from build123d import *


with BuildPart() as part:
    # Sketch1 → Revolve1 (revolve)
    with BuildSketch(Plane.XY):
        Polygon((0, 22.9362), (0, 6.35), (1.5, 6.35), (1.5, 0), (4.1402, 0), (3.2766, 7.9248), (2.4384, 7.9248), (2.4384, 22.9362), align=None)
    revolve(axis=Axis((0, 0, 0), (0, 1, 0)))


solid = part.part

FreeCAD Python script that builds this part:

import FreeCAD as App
import Part
import Sketcher
from FreeCAD import Vector
Q = App.Units.Quantity


def add_polygon(sketch, points):
    """Adds a closed chain of lines whose ends are joined by coincident constraints."""
    first, n = sketch.GeometryCount, len(points)
    for a, b in zip(points, points[1:] + points[:1]):
        sketch.addGeometry(Part.LineSegment(App.Vector(*a, 0), App.Vector(*b, 0)), False)
    for i in range(n):
        sketch.addConstraint(Sketcher.Constraint("Coincident", first + i, 2, first + (i + 1) % n, 1))

doc = App.newDocument("Part")
body = doc.addObject("PartDesign::Body", "Body")

# Sketch on XY plane
sketch1 = doc.addObject("Sketcher::SketchObject", "Sketch")
body.addObject(sketch1)
sketch1.AttachmentSupport = (doc.XY_Plane, [""])
sketch1.MapMode = "FlatFace"
add_polygon(sketch1, [(0, 22.9), (0, 6.3), (1.5, 6.3), (1.5, 0), (4.1, 0), (3.3, 7.9), (2.4, 7.9), (2.4, 22.9)])  # lines 0-7
sketch1.addConstraint(Sketcher.Constraint("Vertical", 0))
sketch1.addConstraint(Sketcher.Constraint("Horizontal", 1))
sketch1.addConstraint(Sketcher.Constraint("Vertical", 2))
sketch1.addConstraint(Sketcher.Constraint("Horizontal", 3))
sketch1.addConstraint(Sketcher.Constraint("Horizontal", 5))
sketch1.addConstraint(Sketcher.Constraint("Vertical", 6))
sketch1.addConstraint(Sketcher.Constraint("Horizontal", 7))
sketch1.addConstraint(Sketcher.Constraint("PointOnObject", 0, 2, -2))
sketch1.addConstraint(Sketcher.Constraint("PointOnObject", 2, 2, -1))
sketch1.addConstraint(Sketcher.Constraint("DistanceY", 2, 2, 2, 1, Q("0.25 in")))
sketch1.addConstraint(Sketcher.Constraint("DistanceX", 5, 2, 5, 1, Q("0.033 in")))
sketch1.addConstraint(Sketcher.Constraint("DistanceX", 7, 2, 7, 1, Q("0.096 in")))
sketch1.addConstraint(Sketcher.Constraint("DistanceY", 0, 2, 0, 1, Q("0.653 in")))
sketch1.addConstraint(Sketcher.Constraint("DistanceY", 6, 1, 6, 2, Q("0.591 in")))
sketch1.addConstraint(Sketcher.Constraint("DistanceX", -1, 1, 3, 2, Q("0.163 in")))
sketch1.addConstraint(Sketcher.Constraint("DistanceX", 1, 1, 1, 2, 1.5))
revolution = doc.addObject("PartDesign::Revolution", "Revolution")
body.addObject(revolution)
revolution.Profile = sketch1
revolution.ReferenceAxis = (sketch1, ["V_Axis"])
revolution.Angle = 360

doc.recompute()
